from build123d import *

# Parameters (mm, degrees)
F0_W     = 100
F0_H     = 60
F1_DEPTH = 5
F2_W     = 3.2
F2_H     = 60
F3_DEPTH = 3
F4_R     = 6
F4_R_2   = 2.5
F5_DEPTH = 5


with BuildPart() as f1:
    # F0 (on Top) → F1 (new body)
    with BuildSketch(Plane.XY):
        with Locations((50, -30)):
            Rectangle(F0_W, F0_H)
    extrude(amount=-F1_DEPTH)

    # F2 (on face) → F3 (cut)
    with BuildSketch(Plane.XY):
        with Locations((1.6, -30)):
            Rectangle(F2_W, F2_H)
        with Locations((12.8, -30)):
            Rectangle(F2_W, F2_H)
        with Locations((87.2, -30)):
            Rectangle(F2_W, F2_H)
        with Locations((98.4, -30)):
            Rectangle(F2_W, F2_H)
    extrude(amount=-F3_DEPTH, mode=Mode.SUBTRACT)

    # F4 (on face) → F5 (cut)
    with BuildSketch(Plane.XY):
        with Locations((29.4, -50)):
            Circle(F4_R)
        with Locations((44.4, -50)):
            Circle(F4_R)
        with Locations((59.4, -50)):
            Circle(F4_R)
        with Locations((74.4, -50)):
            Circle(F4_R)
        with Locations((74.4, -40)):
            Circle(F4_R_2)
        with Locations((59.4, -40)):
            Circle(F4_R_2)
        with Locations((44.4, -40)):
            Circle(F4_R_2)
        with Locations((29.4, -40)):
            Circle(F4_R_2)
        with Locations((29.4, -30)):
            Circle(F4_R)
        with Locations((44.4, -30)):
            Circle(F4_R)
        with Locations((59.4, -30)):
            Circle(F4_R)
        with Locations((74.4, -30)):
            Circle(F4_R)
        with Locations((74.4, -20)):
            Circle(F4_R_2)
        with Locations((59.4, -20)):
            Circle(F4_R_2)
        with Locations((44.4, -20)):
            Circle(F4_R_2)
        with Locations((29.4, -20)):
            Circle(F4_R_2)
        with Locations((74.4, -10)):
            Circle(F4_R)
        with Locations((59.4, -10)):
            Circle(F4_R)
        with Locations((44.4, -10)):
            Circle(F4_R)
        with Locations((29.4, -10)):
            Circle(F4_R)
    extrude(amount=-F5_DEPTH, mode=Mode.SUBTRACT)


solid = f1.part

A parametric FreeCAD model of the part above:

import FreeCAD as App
import Part
import Sketcher
from FreeCAD import Vector
Q = App.Units.Quantity


def add_polygon(sketch, points):
    """Adds a closed chain of lines whose ends are joined by coincident constraints."""
    first, n = sketch.GeometryCount, len(points)
    for a, b in zip(points, points[1:] + points[:1]):
        sketch.addGeometry(Part.LineSegment(App.Vector(*a, 0), App.Vector(*b, 0)), False)
    for i in range(n):
        sketch.addConstraint(Sketcher.Constraint("Coincident", first + i, 2, first + (i + 1) % n, 1))

doc = App.newDocument("Part")
params = doc.addObject("Spreadsheet::Sheet", "Params")
for row, (alias, value) in enumerate([
    ("sketch1_width", "100 mm"),
    ("sketch1_height", "60 mm"),
    ("pad1_length", "5 mm"),
    ("sketch2_height", "60 mm"),
    ("sketch2_width", "3.2 mm"),
    ("pocket1_length", "3 mm"),
    ("sketch3_diameter", "12 mm"),
    ("sketch3_diameter2", "5 mm"),
    ("pocket2_length", "5 mm"),
], start=1):
    params.set(f"A{row}", alias)
    params.set(f"B{row}", "=" + value)
    params.setAlias(f"B{row}", alias)

body = doc.addObject("PartDesign::Body", "Body")

sketch1 = doc.addObject("Sketcher::SketchObject", "Sketch")
body.addObject(sketch1)
sketch1.AttachmentSupport = (doc.XY_Plane, [""])
sketch1.MapMode = "FlatFace"
add_polygon(sketch1, [(0, 0), (0, -60), (100, -60), (100, 0)])
sketch1.addConstraint([
    Sketcher.Constraint("Vertical", 0),
    Sketcher.Constraint("Horizontal", 1),
    Sketcher.Constraint("Vertical", 2),
    Sketcher.Constraint("Horizontal", 3),
    Sketcher.Constraint("Coincident", 3, 2, -1, 1),
    Sketcher.Constraint("DistanceX", 1, 1, 1, 2, Q("100 mm")),
    Sketcher.Constraint("DistanceY", 0, 2, 0, 1, Q("60 mm")),
])
sketch1.setExpression("Constraints[9]", "Params.sketch1_width")
sketch1.setExpression("Constraints[10]", "Params.sketch1_height")
pad1 = doc.addObject("PartDesign::Pad", "Pad")
body.addObject(pad1)
pad1.Profile = sketch1
pad1.setExpression("Length", "Params.pad1_length")
pad1.Reversed = True

sketch2 = doc.addObject("Sketcher::SketchObject", "Sketch001")
body.addObject(sketch2)
sketch2.AttachmentSupport = (doc.XY_Plane, [""])
sketch2.MapMode = "FlatFace"
add_polygon(sketch2, [(0, 0), (0, -60), (3.2, -60), (3.2, 0)])
add_polygon(sketch2, [(11.2, 0), (11.2, -60), (14.4, -60), (14.4, 0)])
add_polygon(sketch2, [(85.6, 0), (85.6, -60), (88.8, -60), (88.8, 0)])
add_polygon(sketch2, [(96.8, 0), (96.8, -60), (100, -60), (100, 0)])
sketch2.addConstraint([
    Sketcher.Constraint("Vertical", 0),
    Sketcher.Constraint("Horizontal", 1),
    Sketcher.Constraint("Vertical", 2),
    Sketcher.Constraint("Horizontal", 3),
    Sketcher.Constraint("Vertical", 4),
    Sketcher.Constraint("Horizontal", 5),
    Sketcher.Constraint("Vertical", 6),
    Sketcher.Constraint("Horizontal", 7),
    Sketcher.Constraint("Vertical", 8),
    Sketcher.Constraint("Horizontal", 9),
    Sketcher.Constraint("Vertical", 10),
    Sketcher.Constraint("Horizontal", 11),
    Sketcher.Constraint("Vertical", 12),
    Sketcher.Constraint("Horizontal", 13),
    Sketcher.Constraint("Vertical", 14),
    Sketcher.Constraint("Horizontal", 15),
    Sketcher.Constraint("Coincident", 3, 2, -1, 1),
    Sketcher.Constraint("PointOnObject", 6, 2, -1),
    Sketcher.Constraint("PointOnObject", 10, 2, -1),
    Sketcher.Constraint("PointOnObject", 14, 2, -1),
    Sketcher.Constraint("Horizontal", 1, 2, 4, 2),
    Sketcher.Constraint("Horizontal", 5, 2, 8, 2),
    Sketcher.Constraint("Horizontal", 9, 2, 12, 2),
    Sketcher.Constraint("Equal", 3, 5),
    Sketcher.Constraint("Equal", 7, 9),
    Sketcher.Constraint("Equal", 11, 13),
    Sketcher.Constraint("DistanceY", 0, 2, 0, 1, Q("60 mm")),
    Sketcher.Constraint("DistanceX", 1, 1, 1, 2, Q("3.2 mm")),
    Sketcher.Constraint("DistanceX", -1, 1, 13, 2, Q("100 mm")),
    Sketcher.Constraint("DistanceX", 1, 2, 4, 2, Q("8 mm")),
    Sketcher.Constraint("DistanceX", 9, 2, 12, 2, Q("8 mm")),
])
sketch2.setExpression("Constraints[42]", "Params.sketch2_height")
sketch2.setExpression("Constraints[43]", "Params.sketch2_width")
pocket1 = doc.addObject("PartDesign::Pocket", "Pocket")
body.addObject(pocket1)
pocket1.Profile = sketch2
pocket1.setExpression("Length", "Params.pocket1_length")

sketch3 = doc.addObject("Sketcher::SketchObject", "Sketch002")
body.addObject(sketch3)
sketch3.AttachmentSupport = (doc.XY_Plane, [""])
sketch3.MapMode = "FlatFace"
sketch3.addGeometry([
    Part.Circle(Vector(29.4, -50, 0), Vector(0, 0, 1), 6),
    Part.Circle(Vector(44.4, -50, 0), Vector(0, 0, 1), 6),
    Part.Circle(Vector(59.4, -50, 0), Vector(0, 0, 1), 6),
    Part.Circle(Vector(74.4, -50, 0), Vector(0, 0, 1), 6),
    Part.Circle(Vector(74.4, -40, 0), Vector(0, 0, 1), 2.5),
    Part.Circle(Vector(59.4, -40, 0), Vector(0, 0, 1), 2.5),
    Part.Circle(Vector(44.4, -40, 0), Vector(0, 0, 1), 2.5),
    Part.Circle(Vector(29.4, -40, 0), Vector(0, 0, 1), 2.5),
    Part.Circle(Vector(29.4, -30, 0), Vector(0, 0, 1), 6),
    Part.Circle(Vector(44.4, -30, 0), Vector(0, 0, 1), 6),
    Part.Circle(Vector(59.4, -30, 0), Vector(0, 0, 1), 6),
    Part.Circle(Vector(74.4, -30, 0), Vector(0, 0, 1), 6),
    Part.Circle(Vector(74.4, -20, 0), Vector(0, 0, 1), 2.5),
    Part.Circle(Vector(59.4, -20, 0), Vector(0, 0, 1), 2.5),
    Part.Circle(Vector(44.4, -20, 0), Vector(0, 0, 1), 2.5),
    Part.Circle(Vector(29.4, -20, 0), Vector(0, 0, 1), 2.5),
    Part.Circle(Vector(74.4, -10, 0), Vector(0, 0, 1), 6),
    Part.Circle(Vector(59.4, -10, 0), Vector(0, 0, 1), 6),
    Part.Circle(Vector(44.4, -10, 0), Vector(0, 0, 1), 6),
    Part.Circle(Vector(29.4, -10, 0), Vector(0, 0, 1), 6),
], False)
sketch3.addConstraint([
    Sketcher.Constraint("Equal", 0, 1),
    Sketcher.Constraint("Equal", 1, 2),
    Sketcher.Constraint("Equal", 2, 3),
    Sketcher.Constraint("Equal", 4, 5),
    Sketcher.Constraint("Equal", 5, 6),
    Sketcher.Constraint("Equal", 6, 7),
    Sketcher.Constraint("Equal", 3, 8),
    Sketcher.Constraint("Equal", 8, 9),
    Sketcher.Constraint("Equal", 9, 10),
    Sketcher.Constraint("Equal", 10, 11),
    Sketcher.Constraint("Equal", 7, 12),
    Sketcher.Constraint("Equal", 12, 13),
    Sketcher.Constraint("Equal", 13, 14),
    Sketcher.Constraint("Equal", 14, 15),
    Sketcher.Constraint("Equal", 11, 16),
    Sketcher.Constraint("Equal", 16, 17),
    Sketcher.Constraint("Equal", 17, 18),
    Sketcher.Constraint("Equal", 18, 19),
    Sketcher.Constraint("Horizontal", 0, 3, 1, 3),
    Sketcher.Constraint("Horizontal", 1, 3, 2, 3),
    Sketcher.Constraint("Horizontal", 2, 3, 3, 3),
    Sketcher.Constraint("Horizontal", 4, 3, 5, 3),
    Sketcher.Constraint("Horizontal", 5, 3, 6, 3),
    Sketcher.Constraint("Horizontal", 6, 3, 7, 3),
    Sketcher.Constraint("Horizontal", 8, 3, 9, 3),
    Sketcher.Constraint("Horizontal", 9, 3, 10, 3),
    Sketcher.Constraint("Horizontal", 10, 3, 11, 3),
    Sketcher.Constraint("Horizontal", 12, 3, 13, 3),
    Sketcher.Constraint("Horizontal", 13, 3, 14, 3),
    Sketcher.Constraint("Horizontal", 14, 3, 15, 3),
    Sketcher.Constraint("Horizontal", 16, 3, 17, 3),
    Sketcher.Constraint("Horizontal", 17, 3, 18, 3),
    Sketcher.Constraint("Horizontal", 18, 3, 19, 3),
    Sketcher.Constraint("Vertical", 3, 3, 4, 3),
    Sketcher.Constraint("Vertical", 2, 3, 5, 3),
    Sketcher.Constraint("Vertical", 1, 3, 6, 3),
    Sketcher.Constraint("Vertical", 0, 3, 7, 3),
    Sketcher.Constraint("Vertical", 7, 3, 8, 3),
    Sketcher.Constraint("Vertical", 6, 3, 9, 3),
    Sketcher.Constraint("Vertical", 5, 3, 10, 3),
    Sketcher.Constraint("Vertical", 4, 3, 11, 3),
    Sketcher.Constraint("Vertical", 11, 3, 12, 3),
    Sketcher.Constraint("Vertical", 10, 3, 13, 3),
    Sketcher.Constraint("Vertical", 9, 3, 14, 3),
    Sketcher.Constraint("Vertical", 8, 3, 15, 3),
    Sketcher.Constraint("Vertical", 12, 3, 16, 3),
    Sketcher.Constraint("Vertical", 13, 3, 17, 3),
    Sketcher.Constraint("Vertical", 14, 3, 18, 3),
    Sketcher.Constraint("Vertical", 15, 3, 19, 3),
    Sketcher.Constraint("Diameter", 0, Q("12 mm")),
    Sketcher.Constraint("Diameter", 4, Q("5 mm")),
    Sketcher.Constraint("DistanceY", 0, 3, -1, 1, Q("50 mm")),
    Sketcher.Constraint("DistanceY", 4, 3, -1, 1, Q("40 mm")),
    Sketcher.Constraint("DistanceY", 8, 3, -1, 1, Q("30 mm")),
    Sketcher.Constraint("DistanceY", 12, 3, -1, 1, Q("20 mm")),
    Sketcher.Constraint("DistanceY", 16, 3, -1, 1, Q("10 mm")),
    Sketcher.Constraint("DistanceX", 0, 3, 1, 3, Q("15 mm")),
    Sketcher.Constraint("DistanceX", 1, 3, 2, 3, Q("15 mm")),
    Sketcher.Constraint("DistanceX", 2, 3, 3, 3, Q("15 mm")),
    Sketcher.Constraint("DistanceX", -1, 1, 0, 3, Q("29.4 mm")),
])
sketch3.setExpression("Constraints[49]", "Params.sketch3_diameter")
sketch3.setExpression("Constraints[50]", "Params.sketch3_diameter2")
pocket2 = doc.addObject("PartDesign::Pocket", "Pocket001")
body.addObject(pocket2)
pocket2.Profile = sketch3
pocket2.setExpression("Length", "Params.pocket2_length")

doc.recompute()
